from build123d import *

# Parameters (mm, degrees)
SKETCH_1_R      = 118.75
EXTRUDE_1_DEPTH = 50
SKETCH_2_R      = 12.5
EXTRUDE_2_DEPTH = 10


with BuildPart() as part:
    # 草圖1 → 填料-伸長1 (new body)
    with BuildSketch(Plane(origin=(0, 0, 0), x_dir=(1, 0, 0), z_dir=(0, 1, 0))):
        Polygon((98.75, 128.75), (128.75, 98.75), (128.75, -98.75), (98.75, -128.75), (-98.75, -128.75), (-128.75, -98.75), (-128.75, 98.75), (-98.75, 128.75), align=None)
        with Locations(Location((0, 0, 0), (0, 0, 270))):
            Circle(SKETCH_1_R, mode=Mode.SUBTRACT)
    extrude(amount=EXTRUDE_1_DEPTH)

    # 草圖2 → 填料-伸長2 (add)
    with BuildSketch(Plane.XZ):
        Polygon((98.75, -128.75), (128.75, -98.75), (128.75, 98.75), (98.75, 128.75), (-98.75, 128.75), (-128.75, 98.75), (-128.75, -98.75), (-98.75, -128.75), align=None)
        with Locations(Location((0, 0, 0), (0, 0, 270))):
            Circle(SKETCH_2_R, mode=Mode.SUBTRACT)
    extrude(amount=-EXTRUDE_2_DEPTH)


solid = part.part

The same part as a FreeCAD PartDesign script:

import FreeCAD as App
import Part
import Sketcher

V = App.Vector


def add_polygon(sketch, points):
    """Adds a closed chain of lines whose ends are joined by coincident constraints."""
    first, n = sketch.GeometryCount, len(points)
    for a, b in zip(points, points[1:] + points[:1]):
        sketch.addGeometry(Part.LineSegment(App.Vector(*a, 0), App.Vector(*b, 0)), False)
    for i in range(n):
        sketch.addConstraint(Sketcher.Constraint("Coincident", first + i, 2, first + (i + 1) % n, 1))

doc = App.newDocument("Part")
body = doc.addObject("PartDesign::Body", "Body")

# Sketch on XZ plane
sketch1 = doc.addObject("Sketcher::SketchObject", "Sketch")
body.addObject(sketch1)
sketch1.AttachmentSupport = (doc.XZ_Plane, [""])
sketch1.MapMode = "FlatFace"
add_polygon(sketch1, [(129, -99), (99, -129), (-99, -129), (-129, -99), (-129, 99), (-99, 129), (99, 129), (129, 99)])  # lines 0-7
sketch1.addGeometry(Part.Circle(V(0, 0, 0), V(0, 0, 1), 119), False)  # 8
sketch1.addConstraint([
    Sketcher.Constraint("Horizontal", 1),
    Sketcher.Constraint("Vertical", 3),
    Sketcher.Constraint("Horizontal", 5),
    Sketcher.Constraint("Vertical", 7),
    Sketcher.Constraint("Coincident", 8, 3, -1, 1),
    Sketcher.Constraint("Symmetric", 0, 2, 4, 2, -1, 1),
    Sketcher.Constraint("Symmetric", 2, 2, 6, 2, -1, 1),
    Sketcher.Constraint("Perpendicular", 0, 2),
    Sketcher.Constraint("Perpendicular", 2, 4),
    Sketcher.Constraint("Perpendicular", 4, 6),
    Sketcher.Constraint("Horizontal", 3, 2, 6, 2),
    Sketcher.Constraint("Vertical", 1, 2, 4, 2),
    Sketcher.Constraint("Equal", 5, 3),
    Sketcher.Constraint("Diameter", 8, 237.5),
    Sketcher.Constraint("DistanceX", 1, 2, 1, 1, 197.5),
    Sketcher.Constraint("DistanceX", 2, 2, 1, 2, 30.0),
])
pad1 = doc.addObject("PartDesign::Pad", "Pad")
body.addObject(pad1)
pad1.Profile = sketch1
pad1.Length = 50
pad1.Reversed = True

# Sketch on XZ plane
sketch2 = doc.addObject("Sketcher::SketchObject", "Sketch001")
body.addObject(sketch2)
sketch2.AttachmentSupport = (doc.XZ_Plane, [""])
sketch2.MapMode = "FlatFace"
add_polygon(sketch2, [(99, -129), (129, -99), (129, 99), (99, 129), (-99, 129), (-129, 99), (-129, -99), (-99, -129)])  # lines 0-7
sketch2.addGeometry(Part.Circle(V(0, 0, 0), V(0, 0, 1), 12), False)  # 8
sketch2.addConstraint([
    Sketcher.Constraint("Vertical", 1),
    Sketcher.Constraint("Horizontal", 3),
    Sketcher.Constraint("Vertical", 5),
    Sketcher.Constraint("Horizontal", 7),
    Sketcher.Constraint("Coincident", 8, 3, -1, 1),
    Sketcher.Constraint("Symmetric", 0, 2, 4, 2, -1, 1),
    Sketcher.Constraint("Symmetric", 2, 2, 6, 2, -1, 1),
    Sketcher.Constraint("Perpendicular", 0, 2),
    Sketcher.Constraint("Perpendicular", 2, 4),
    Sketcher.Constraint("Perpendicular", 4, 6),
    Sketcher.Constraint("Horizontal", 1, 2, 4, 2),
    Sketcher.Constraint("Vertical", 3, 2, 6, 2),
    Sketcher.Constraint("Equal", 7, 1),
    Sketcher.Constraint("Diameter", 8, 25.0),
    Sketcher.Constraint("DistanceX", 3, 2, 3, 1, 197.5),
    Sketcher.Constraint("DistanceX", 2, 2, 1, 2, 30.0),
])
pad2 = doc.addObject("PartDesign::Pad", "Pad001")
body.addObject(pad2)
pad2.Profile = sketch2
pad2.Length = 10
pad2.Reversed = True

doc.recompute()
